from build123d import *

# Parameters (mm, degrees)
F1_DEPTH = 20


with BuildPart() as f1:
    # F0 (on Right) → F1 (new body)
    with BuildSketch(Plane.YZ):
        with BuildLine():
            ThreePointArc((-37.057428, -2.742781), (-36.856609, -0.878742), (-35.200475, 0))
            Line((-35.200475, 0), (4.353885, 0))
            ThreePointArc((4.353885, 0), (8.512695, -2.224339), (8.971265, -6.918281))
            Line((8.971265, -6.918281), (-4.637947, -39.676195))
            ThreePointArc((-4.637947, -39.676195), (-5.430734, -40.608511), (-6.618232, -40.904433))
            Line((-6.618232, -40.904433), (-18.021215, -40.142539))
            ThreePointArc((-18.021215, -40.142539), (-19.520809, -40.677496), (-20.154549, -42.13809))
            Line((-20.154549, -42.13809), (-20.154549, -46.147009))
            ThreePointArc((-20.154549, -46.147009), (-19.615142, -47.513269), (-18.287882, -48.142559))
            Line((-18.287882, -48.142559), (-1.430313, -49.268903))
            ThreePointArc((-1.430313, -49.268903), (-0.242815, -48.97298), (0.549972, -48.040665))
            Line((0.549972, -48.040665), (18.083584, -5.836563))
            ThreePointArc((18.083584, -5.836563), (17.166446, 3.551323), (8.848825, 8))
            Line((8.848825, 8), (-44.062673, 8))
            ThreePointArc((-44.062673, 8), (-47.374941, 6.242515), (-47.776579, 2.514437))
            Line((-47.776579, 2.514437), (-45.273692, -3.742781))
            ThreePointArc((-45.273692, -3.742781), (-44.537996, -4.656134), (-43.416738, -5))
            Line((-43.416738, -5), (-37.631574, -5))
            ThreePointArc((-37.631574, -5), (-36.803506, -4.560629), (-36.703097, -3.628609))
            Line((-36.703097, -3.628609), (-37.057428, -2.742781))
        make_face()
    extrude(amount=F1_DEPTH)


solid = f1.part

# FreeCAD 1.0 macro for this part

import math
import FreeCAD as App
import Part
import Sketcher

doc = App.newDocument("Part")
body = doc.addObject("PartDesign::Body", "Body")

sketch1 = doc.addObject("Sketcher::SketchObject", "Sketch")
body.addObject(sketch1)
sketch1.AttachmentSupport = (doc.YZ_Plane, [""])
sketch1.MapMode = "FlatFace"
sketch1.addGeometry([
    Part.ArcOfCircle(Part.Circle(App.Vector(-35.2, -2, 0), App.Vector(0, 0, 1), 2), math.radians(90), math.radians(202)),
    Part.LineSegment(App.Vector(-35.2, 0, 0), App.Vector(4.4, 0, 0)),
    Part.ArcOfCircle(Part.Circle(App.Vector(4.4, -5, 0), App.Vector(0, 0, 1), 5), math.radians(-23), math.radians(90)),
    Part.LineSegment(App.Vector(9, -6.9, 0), App.Vector(-4.6, -39.7, 0)),
    Part.ArcOfCircle(Part.Circle(App.Vector(-6.5, -38.9, 0), App.Vector(0, 0, 1), 2), math.radians(-94), math.radians(-23)),
    Part.LineSegment(App.Vector(-6.6, -40.9, 0), App.Vector(-18, -40.1, 0)),
    Part.ArcOfCircle(Part.Circle(App.Vector(-18.2, -42.1, 0), App.Vector(0, 0, 1), 2), math.radians(86), math.radians(180)),
    Part.LineSegment(App.Vector(-20.2, -42.1, 0), App.Vector(-20.2, -46.1, 0)),
    Part.ArcOfCircle(Part.Circle(App.Vector(-18.2, -46.1, 0), App.Vector(0, 0, 1), 2), math.radians(-180), math.radians(-94)),
    Part.LineSegment(App.Vector(-18.3, -48.1, 0), App.Vector(-1.4, -49.3, 0)),
    Part.ArcOfCircle(Part.Circle(App.Vector(-1.3, -47.3, 0), App.Vector(0, 0, 1), 2), math.radians(-94), math.radians(-23)),
    Part.LineSegment(App.Vector(0.5, -48, 0), App.Vector(18.1, -5.8, 0)),
    Part.ArcOfCircle(Part.Circle(App.Vector(8.8, -2, 0), App.Vector(0, 0, 1), 10), math.radians(-23), math.radians(90)),
    Part.LineSegment(App.Vector(8.8, 8, 0), App.Vector(-44.1, 8, 0)),
    Part.ArcOfCircle(Part.Circle(App.Vector(-44.1, 4, 0), App.Vector(0, 0, 1), 4), math.radians(90), math.radians(202)),
    Part.LineSegment(App.Vector(-47.8, 2.5, 0), App.Vector(-45.3, -3.7, 0)),
    Part.ArcOfCircle(Part.Circle(App.Vector(-43.4, -3, 0), App.Vector(0, 0, 1), 2), math.radians(-158), math.radians(-90)),
    Part.LineSegment(App.Vector(-43.4, -5, 0), App.Vector(-37.6, -5, 0)),
    Part.ArcOfCircle(Part.Circle(App.Vector(-37.6, -4, 0), App.Vector(0, 0, 1), 1), math.radians(-90), math.radians(22)),
    Part.LineSegment(App.Vector(-36.7, -3.6, 0), App.Vector(-37.1, -2.7, 0)),
], False)
sketch1.addConstraint([
    Sketcher.Constraint("Tangent", 0, 1, 1, 1),
    Sketcher.Constraint("Tangent", 1, 2, 2, 2),
    Sketcher.Constraint("Tangent", 2, 1, 3, 1),
    Sketcher.Constraint("Tangent", 3, 2, 4, 2),
    Sketcher.Constraint("Tangent", 4, 1, 5, 1),
    Sketcher.Constraint("Tangent", 5, 2, 6, 1),
    Sketcher.Constraint("Tangent", 6, 2, 7, 1),
    Sketcher.Constraint("Tangent", 7, 2, 8, 1),
    Sketcher.Constraint("Tangent", 8, 2, 9, 1),
    Sketcher.Constraint("Tangent", 9, 2, 10, 1),
    Sketcher.Constraint("Tangent", 10, 2, 11, 1),
    Sketcher.Constraint("Tangent", 11, 2, 12, 1),
    Sketcher.Constraint("Tangent", 12, 2, 13, 1),
    Sketcher.Constraint("Tangent", 13, 2, 14, 1),
    Sketcher.Constraint("Tangent", 14, 2, 15, 1),
    Sketcher.Constraint("Tangent", 15, 2, 16, 1),
    Sketcher.Constraint("Tangent", 16, 2, 17, 1),
    Sketcher.Constraint("Tangent", 17, 2, 18, 1),
    Sketcher.Constraint("Tangent", 18, 2, 19, 1),
    Sketcher.Constraint("Tangent", 19, 2, 0, 2),
    Sketcher.Constraint("Horizontal", 1),
    Sketcher.Constraint("Vertical", 7),
    Sketcher.Constraint("Horizontal", 13),
    Sketcher.Constraint("Horizontal", 17),
    Sketcher.Constraint("Equal", 0, 4),
    Sketcher.Constraint("Equal", 4, 6),
    Sketcher.Constraint("Equal", 6, 8),
    Sketcher.Constraint("Equal", 10, 16),
    Sketcher.Constraint("PointOnObject", 0, 1, -1),
    Sketcher.Constraint("Parallel", 5, 9),
    Sketcher.Constraint("Parallel", 3, 11),
    Sketcher.Constraint("Parallel", 15, 19),
    Sketcher.Constraint("Horizontal", 0, 3, 12, 3),
    Sketcher.Constraint("Horizontal", 2, 3, 16, 2),
    Sketcher.Constraint("Radius", 0, 2.0),
    Sketcher.Constraint("Radius", 2, 5.000001),
    Sketcher.Constraint("Radius", 12, 9.999999),
    Sketcher.Constraint("Radius", 14, 4.0),
    Sketcher.Constraint("Radius", 18, 1.0),
    Sketcher.Constraint("DistanceY", 16, 3, 0, 3, 0.999998),
    Sketcher.Constraint("DistanceX", 1, 1, 1, 2, 39.55436),
    Sketcher.Constraint("DistanceY", 7, 2, 7, 1, 4.008919),
    Sketcher.Constraint("DistanceX", 4, 3, -1, 1, 6.484898),
    Sketcher.Constraint("DistanceX", 0, 3, 12, 3, 44.049301),
    Sketcher.Constraint("DistanceX", 14, 3, 18, 3, 6.431099),
    Sketcher.Constraint("DistanceX", 6, 3, 3, 2, 13.516602),
    Sketcher.Constraint("DistanceX", 2, 3, 11, 2, 13.7297),
    Sketcher.Constraint("DistanceX", 13, 2, 0, 3, 8.862198),
    Sketcher.Constraint("DistanceY", 6, 3, -1, 1, 42.13809),
    Sketcher.Constraint("DistanceX", 10, 3, -1, 1, 1.296982),
])
pad1 = doc.addObject("PartDesign::Pad", "Pad")
body.addObject(pad1)
pad1.Profile = sketch1
pad1.Length = 20

doc.recompute()
